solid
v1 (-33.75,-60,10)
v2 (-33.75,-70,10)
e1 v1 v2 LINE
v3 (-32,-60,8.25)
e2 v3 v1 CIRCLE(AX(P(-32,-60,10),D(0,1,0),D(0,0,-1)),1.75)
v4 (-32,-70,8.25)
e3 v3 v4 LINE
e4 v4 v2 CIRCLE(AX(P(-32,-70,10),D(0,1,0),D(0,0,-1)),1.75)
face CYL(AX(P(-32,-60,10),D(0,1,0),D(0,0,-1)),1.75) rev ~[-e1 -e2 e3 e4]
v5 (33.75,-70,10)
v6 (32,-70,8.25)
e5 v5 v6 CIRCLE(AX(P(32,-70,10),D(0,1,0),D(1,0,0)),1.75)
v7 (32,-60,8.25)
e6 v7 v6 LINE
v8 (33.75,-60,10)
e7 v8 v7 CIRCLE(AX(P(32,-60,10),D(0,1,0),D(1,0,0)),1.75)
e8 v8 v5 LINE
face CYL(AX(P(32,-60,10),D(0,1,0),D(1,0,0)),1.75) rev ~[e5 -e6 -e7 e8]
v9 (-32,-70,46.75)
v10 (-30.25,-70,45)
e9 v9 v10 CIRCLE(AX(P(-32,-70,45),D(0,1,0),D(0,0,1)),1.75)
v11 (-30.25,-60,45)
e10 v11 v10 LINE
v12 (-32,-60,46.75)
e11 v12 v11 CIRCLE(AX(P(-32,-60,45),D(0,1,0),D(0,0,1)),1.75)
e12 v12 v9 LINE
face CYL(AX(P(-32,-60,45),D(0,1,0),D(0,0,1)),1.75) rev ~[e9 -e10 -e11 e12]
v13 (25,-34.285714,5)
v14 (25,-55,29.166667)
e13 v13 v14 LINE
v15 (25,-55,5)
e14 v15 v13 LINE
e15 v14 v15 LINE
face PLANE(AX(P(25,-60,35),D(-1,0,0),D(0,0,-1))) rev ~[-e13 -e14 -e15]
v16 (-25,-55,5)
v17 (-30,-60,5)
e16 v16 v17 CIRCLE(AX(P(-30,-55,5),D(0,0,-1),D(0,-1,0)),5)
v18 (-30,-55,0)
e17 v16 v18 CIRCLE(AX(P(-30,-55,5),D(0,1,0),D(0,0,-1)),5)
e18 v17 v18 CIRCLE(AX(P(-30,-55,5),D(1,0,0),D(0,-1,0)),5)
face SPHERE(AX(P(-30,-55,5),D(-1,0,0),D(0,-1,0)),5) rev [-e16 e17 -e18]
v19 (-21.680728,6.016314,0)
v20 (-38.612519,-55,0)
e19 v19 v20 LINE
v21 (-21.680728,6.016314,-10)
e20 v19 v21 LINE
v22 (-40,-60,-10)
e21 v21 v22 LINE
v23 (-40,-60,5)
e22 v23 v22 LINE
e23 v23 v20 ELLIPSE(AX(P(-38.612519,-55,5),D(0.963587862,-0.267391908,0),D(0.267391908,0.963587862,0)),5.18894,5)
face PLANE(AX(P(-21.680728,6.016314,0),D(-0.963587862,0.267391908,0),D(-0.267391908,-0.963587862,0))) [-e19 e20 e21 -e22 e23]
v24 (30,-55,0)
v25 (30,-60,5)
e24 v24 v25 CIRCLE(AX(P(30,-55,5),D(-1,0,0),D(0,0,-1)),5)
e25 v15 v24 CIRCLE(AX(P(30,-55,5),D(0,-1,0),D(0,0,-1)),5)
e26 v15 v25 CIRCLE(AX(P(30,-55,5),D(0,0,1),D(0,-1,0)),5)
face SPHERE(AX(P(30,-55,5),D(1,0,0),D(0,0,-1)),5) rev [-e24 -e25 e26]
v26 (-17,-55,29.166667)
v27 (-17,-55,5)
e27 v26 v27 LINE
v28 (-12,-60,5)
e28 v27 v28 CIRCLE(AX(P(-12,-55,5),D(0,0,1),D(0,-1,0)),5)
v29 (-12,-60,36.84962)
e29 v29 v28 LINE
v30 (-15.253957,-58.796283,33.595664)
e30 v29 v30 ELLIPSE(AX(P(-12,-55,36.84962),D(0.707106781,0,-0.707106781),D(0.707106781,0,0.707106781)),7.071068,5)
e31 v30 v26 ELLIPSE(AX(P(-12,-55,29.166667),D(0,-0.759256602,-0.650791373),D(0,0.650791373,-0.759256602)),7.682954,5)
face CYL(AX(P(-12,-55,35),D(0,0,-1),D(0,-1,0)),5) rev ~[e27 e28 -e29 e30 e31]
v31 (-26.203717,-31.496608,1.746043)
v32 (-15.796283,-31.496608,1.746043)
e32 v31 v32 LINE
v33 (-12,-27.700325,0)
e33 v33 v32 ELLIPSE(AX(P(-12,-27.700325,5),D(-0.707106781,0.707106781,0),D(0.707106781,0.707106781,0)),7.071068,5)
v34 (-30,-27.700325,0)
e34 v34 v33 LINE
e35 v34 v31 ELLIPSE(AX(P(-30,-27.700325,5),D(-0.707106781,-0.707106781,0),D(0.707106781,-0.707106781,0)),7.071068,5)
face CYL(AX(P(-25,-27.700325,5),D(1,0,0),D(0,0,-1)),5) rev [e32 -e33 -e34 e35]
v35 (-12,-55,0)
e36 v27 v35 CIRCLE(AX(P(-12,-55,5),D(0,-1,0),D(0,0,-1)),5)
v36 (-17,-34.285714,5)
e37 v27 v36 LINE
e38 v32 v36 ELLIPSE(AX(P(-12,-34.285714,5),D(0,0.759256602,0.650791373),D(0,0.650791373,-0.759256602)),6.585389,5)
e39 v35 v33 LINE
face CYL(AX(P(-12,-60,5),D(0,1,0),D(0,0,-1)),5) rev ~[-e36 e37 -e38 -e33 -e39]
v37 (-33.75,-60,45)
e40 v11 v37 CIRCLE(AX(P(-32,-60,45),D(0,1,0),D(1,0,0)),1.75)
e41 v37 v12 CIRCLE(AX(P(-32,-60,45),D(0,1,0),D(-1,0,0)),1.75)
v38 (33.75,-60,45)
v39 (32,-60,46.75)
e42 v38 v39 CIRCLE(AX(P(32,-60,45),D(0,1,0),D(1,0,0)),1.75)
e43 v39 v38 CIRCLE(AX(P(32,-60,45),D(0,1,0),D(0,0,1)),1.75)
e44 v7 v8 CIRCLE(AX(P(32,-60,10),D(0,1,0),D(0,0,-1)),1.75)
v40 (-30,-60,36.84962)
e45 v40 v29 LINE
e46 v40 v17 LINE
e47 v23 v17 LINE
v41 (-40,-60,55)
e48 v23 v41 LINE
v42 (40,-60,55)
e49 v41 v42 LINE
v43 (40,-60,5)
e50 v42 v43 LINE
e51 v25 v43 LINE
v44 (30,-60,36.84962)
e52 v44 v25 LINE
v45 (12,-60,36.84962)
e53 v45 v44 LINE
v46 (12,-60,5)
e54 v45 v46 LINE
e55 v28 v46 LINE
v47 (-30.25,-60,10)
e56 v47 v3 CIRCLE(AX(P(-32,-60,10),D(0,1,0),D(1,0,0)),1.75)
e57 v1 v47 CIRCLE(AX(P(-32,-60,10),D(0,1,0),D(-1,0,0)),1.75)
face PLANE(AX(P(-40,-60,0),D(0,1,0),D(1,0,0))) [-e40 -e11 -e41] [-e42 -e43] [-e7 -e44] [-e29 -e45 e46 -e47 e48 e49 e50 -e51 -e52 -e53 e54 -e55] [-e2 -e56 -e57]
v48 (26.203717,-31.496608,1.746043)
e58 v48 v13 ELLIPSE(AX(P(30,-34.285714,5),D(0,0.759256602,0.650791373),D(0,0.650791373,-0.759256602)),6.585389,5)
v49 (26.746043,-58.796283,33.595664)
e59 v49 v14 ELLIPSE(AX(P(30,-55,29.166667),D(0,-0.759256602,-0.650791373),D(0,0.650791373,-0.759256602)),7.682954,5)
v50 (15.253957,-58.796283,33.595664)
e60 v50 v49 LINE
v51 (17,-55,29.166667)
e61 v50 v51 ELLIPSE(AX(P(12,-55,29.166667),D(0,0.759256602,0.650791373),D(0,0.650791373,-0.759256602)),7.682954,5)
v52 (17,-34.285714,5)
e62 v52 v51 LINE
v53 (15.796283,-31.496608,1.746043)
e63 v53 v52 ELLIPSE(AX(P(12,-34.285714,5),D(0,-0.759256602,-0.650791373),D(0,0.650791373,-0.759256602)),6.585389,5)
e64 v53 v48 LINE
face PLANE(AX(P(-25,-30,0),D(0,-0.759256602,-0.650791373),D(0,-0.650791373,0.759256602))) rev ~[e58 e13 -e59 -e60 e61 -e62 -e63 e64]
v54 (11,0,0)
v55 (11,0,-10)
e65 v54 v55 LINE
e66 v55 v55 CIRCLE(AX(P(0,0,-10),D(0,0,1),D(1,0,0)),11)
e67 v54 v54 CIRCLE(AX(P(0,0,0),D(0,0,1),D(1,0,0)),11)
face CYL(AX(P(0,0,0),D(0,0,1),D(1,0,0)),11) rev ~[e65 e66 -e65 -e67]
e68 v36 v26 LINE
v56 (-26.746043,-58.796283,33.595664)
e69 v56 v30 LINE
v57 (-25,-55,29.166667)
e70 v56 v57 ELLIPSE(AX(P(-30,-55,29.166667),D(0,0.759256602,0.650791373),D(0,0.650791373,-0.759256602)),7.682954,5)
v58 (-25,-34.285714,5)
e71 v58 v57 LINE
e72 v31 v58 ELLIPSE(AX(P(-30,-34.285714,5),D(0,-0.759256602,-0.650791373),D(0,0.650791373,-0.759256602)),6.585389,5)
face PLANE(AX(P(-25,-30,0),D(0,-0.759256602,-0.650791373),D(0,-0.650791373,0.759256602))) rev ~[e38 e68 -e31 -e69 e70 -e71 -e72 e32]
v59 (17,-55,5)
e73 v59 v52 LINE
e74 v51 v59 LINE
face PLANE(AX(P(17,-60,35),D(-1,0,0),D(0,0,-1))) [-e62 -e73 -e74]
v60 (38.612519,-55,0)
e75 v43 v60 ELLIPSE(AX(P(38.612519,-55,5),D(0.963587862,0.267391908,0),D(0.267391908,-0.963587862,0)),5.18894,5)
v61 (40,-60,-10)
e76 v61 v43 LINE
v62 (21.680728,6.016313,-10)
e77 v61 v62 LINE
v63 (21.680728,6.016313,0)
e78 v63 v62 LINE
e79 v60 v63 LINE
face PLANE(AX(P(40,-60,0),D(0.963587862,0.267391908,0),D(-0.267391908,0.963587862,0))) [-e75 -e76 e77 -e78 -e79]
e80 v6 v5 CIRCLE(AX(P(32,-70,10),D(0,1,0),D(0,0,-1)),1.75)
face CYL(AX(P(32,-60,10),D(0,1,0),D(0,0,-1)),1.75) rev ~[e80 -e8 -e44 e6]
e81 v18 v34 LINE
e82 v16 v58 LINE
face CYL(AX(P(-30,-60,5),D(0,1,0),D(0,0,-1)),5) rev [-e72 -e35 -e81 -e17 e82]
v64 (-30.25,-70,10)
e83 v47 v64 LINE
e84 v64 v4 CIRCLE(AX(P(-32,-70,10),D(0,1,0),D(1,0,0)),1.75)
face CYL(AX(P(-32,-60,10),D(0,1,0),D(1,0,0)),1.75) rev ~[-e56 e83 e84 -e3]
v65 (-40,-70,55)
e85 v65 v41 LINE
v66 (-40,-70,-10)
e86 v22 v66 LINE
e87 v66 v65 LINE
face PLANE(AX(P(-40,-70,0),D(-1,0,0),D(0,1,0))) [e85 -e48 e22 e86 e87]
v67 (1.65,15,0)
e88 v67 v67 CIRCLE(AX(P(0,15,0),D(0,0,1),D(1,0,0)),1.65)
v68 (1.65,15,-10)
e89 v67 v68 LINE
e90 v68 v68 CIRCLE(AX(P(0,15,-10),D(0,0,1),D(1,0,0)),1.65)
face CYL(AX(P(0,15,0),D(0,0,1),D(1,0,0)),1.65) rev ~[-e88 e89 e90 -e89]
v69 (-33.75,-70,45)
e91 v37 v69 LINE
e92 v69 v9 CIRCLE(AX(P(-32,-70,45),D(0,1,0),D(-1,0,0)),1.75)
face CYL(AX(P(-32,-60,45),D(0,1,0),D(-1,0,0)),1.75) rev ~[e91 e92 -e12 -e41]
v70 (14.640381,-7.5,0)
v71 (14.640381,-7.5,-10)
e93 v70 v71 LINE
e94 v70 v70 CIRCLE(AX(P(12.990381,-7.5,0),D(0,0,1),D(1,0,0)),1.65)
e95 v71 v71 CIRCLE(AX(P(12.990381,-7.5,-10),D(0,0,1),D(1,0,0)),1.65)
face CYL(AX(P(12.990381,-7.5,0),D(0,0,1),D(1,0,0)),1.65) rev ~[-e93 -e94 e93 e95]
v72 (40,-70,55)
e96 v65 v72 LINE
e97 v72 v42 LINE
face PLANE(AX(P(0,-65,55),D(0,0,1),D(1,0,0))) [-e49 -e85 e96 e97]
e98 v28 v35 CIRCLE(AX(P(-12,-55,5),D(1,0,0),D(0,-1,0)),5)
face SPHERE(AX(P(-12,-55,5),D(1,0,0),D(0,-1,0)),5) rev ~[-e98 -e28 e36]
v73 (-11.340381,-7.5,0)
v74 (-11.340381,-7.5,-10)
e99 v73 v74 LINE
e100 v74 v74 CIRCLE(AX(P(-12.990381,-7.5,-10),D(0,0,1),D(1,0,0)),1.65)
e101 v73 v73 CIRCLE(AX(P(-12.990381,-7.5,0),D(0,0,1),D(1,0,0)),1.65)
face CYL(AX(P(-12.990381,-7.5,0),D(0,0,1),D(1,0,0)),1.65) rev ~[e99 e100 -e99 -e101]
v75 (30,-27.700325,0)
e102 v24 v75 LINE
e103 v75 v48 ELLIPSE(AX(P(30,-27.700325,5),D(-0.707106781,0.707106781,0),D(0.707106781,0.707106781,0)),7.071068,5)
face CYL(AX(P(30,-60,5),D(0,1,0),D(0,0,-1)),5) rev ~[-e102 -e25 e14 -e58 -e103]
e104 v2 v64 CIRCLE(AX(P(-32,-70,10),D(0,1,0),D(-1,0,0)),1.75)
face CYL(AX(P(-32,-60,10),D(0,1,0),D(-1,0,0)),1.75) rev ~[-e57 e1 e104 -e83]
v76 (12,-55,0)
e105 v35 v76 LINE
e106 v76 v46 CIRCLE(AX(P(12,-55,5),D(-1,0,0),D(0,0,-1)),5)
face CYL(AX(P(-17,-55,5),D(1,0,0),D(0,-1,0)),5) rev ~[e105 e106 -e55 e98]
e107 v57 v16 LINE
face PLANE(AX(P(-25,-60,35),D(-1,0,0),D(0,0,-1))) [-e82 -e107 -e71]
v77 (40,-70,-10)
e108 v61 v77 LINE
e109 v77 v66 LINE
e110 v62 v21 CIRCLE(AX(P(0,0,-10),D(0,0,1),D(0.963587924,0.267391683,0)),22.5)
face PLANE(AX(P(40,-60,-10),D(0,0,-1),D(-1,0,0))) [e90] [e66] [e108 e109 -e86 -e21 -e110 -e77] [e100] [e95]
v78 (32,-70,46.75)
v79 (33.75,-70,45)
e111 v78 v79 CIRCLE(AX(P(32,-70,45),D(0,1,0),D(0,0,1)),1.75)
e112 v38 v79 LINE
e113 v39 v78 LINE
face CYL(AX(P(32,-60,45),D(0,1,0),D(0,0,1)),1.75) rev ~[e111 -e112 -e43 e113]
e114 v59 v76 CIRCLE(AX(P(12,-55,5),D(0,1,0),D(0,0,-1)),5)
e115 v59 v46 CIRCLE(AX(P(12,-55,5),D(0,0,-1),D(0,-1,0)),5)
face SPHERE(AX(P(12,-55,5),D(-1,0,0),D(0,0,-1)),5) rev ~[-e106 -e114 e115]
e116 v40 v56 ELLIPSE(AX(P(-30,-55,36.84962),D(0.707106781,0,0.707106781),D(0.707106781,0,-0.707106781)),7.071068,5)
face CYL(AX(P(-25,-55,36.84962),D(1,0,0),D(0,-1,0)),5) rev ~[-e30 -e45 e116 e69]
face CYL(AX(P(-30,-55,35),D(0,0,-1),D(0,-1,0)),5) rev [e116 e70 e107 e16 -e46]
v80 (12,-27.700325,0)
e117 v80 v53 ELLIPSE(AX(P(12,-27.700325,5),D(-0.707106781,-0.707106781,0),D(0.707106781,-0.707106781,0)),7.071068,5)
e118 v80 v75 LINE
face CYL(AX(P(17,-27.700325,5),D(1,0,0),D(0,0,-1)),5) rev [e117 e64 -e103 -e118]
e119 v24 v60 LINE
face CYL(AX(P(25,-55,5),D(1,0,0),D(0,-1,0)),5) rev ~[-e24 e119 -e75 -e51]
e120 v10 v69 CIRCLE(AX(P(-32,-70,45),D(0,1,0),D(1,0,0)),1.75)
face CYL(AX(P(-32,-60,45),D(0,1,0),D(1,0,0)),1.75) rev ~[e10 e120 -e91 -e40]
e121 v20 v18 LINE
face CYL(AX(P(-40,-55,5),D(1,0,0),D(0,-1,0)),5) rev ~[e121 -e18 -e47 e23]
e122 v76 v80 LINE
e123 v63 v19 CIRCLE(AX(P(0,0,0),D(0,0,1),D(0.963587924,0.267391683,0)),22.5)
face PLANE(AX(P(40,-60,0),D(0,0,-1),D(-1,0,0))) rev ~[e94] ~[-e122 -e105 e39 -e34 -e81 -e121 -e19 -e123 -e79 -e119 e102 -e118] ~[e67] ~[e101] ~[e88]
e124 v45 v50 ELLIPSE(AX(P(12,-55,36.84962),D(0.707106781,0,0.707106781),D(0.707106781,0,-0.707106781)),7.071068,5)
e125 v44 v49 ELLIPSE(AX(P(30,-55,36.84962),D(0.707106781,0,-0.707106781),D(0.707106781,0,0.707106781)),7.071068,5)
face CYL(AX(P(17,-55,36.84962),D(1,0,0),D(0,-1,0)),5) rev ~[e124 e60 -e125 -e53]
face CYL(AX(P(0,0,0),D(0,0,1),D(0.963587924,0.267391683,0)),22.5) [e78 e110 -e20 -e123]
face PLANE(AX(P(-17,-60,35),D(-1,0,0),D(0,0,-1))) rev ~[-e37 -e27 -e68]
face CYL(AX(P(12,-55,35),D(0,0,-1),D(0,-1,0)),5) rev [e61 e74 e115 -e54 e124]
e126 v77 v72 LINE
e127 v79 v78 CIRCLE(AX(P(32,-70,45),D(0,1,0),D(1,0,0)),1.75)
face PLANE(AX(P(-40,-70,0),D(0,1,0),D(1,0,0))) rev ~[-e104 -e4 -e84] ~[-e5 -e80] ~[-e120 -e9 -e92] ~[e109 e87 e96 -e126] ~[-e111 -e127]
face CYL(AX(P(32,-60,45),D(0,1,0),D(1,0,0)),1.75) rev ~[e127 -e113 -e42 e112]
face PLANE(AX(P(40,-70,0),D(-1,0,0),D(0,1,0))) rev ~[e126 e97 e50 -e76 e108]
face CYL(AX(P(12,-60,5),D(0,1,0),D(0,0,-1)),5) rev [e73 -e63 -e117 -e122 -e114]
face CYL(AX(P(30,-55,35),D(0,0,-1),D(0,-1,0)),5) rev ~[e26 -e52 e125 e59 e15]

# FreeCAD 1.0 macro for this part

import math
import FreeCAD as App
import Part
import Sketcher
from FreeCAD import Vector


def edges_at(feature, points):
    """Names of the edges that pass closest to the given points."""
    edges = feature.Shape.Edges
    near = lambda p: min(range(len(edges)), key=lambda i: edges[i].distToShape(Part.Vertex(*p))[0])
    return sorted({f"Edge{near(p) + 1}" for p in points})


def add_polygon(sketch, points):
    """Adds a closed chain of lines whose ends are joined by coincident constraints."""
    first, n = sketch.GeometryCount, len(points)
    for a, b in zip(points, points[1:] + points[:1]):
        sketch.addGeometry(Part.LineSegment(App.Vector(*a, 0), App.Vector(*b, 0)), False)
    for i in range(n):
        sketch.addConstraint(Sketcher.Constraint("Coincident", first + i, 2, first + (i + 1) % n, 1))

doc = App.newDocument("Part")
body = doc.addObject("PartDesign::Body", "Body")

sketch1 = body.newObject("Sketcher::SketchObject", "Sketch")
sketch1.AttachmentSupport = (doc.getObject("XY_Plane"), [""])
sketch1.MapMode = "FlatFace"
sketch1.addGeometry([
    Part.ArcOfCircle(Part.Circle(Vector(0, 0, 0), Vector(0, 0, 1), 22.5), math.radians(16), math.radians(164)),
    Part.LineSegment(Vector(-21.7, 6, 0), Vector(-40, -60, 0)),
    Part.LineSegment(Vector(-40, -60, 0), Vector(40, -60, 0)),
    Part.LineSegment(Vector(40, -60, 0), Vector(21.7, 6, 0)),
    Part.Circle(Vector(-13, -7.5, 0), Vector(0, 0, 1), 1.6),
    Part.Circle(Vector(13, -7.5, 0), Vector(0, 0, 1), 1.6),
    Part.Circle(Vector(0, 0, 0), Vector(0, 0, 1), 11),
    Part.Circle(Vector(0, 15, 0), Vector(0, 0, 1), 1.6),
], False)
sketch1.addConstraint([
    Sketcher.Constraint("Tangent", 0, 2, 1, 1),
    Sketcher.Constraint("Coincident", 1, 2, 2, 1),
    Sketcher.Constraint("Coincident", 2, 2, 3, 1),
    Sketcher.Constraint("Tangent", 3, 2, 0, 1),
    Sketcher.Constraint("Horizontal", 2),
    Sketcher.Constraint("Coincident", 0, 3, -1, 1),
    Sketcher.Constraint("Coincident", 6, 3, -1, 1),
    Sketcher.Constraint("Equal", 4, 5),
    Sketcher.Constraint("Equal", 5, 7),
    Sketcher.Constraint("Symmetric", 4, 3, 5, 3, -2),
    Sketcher.Constraint("PointOnObject", 7, 3, -2),
    Sketcher.Constraint("Horizontal", 0, 2, 3, 2),
    Sketcher.Constraint("Diameter", 6, 22.0),
    Sketcher.Constraint("Diameter", 4, 3.3),
    Sketcher.Constraint("Radius", 0, 22.5),
    Sketcher.Constraint("DistanceX", 2, 1, 2, 2, 80.0),
    Sketcher.Constraint("DistanceY", -1, 1, 7, 3, 15.0),
    Sketcher.Constraint("DistanceY", 1, 2, -1, 1, 60.0),
    Sketcher.Constraint("DistanceY", 4, 3, -1, 1, 7.5),
    Sketcher.Constraint("DistanceX", 4, 3, -1, 1, 12.990381),
])
pad1 = body.newObject("PartDesign::Pad", "Pad")
pad1.Profile = sketch1
pad1.Length = 10
pad1.Reversed = True

sketch2 = body.newObject("Sketcher::SketchObject", "Sketch001")
sketch2.AttachmentSupport = (doc.getObject("XZ_Plane"), [""])
sketch2.MapMode = "FlatFace"
sketch2.AttachmentOffset = App.Placement(Vector(0, 0, 60), App.Rotation())
add_polygon(sketch2, [(40, -10), (40, 0), (-40, 0), (-40, -10)])
sketch2.addConstraint([
    Sketcher.Constraint("Vertical", 0),
    Sketcher.Constraint("Horizontal", 1),
    Sketcher.Constraint("Vertical", 2),
    Sketcher.Constraint("Horizontal", 3),
    Sketcher.Constraint("Symmetric", 0, 2, 1, 2, -1, 1),
    Sketcher.Constraint("DistanceX", 1, 2, 1, 1, 80.0),
    Sketcher.Constraint("DistanceY", 0, 1, 0, 2, 10.0),
])
pad2 = body.newObject("PartDesign::Pad", "Pad001")
pad2.Profile = sketch2
pad2.Length = 10

sketch3 = body.newObject("Sketcher::SketchObject", "Sketch002")
sketch3.AttachmentSupport = (doc.getObject("XY_Plane"), [""])
sketch3.MapMode = "FlatFace"
add_polygon(sketch3, [(-40, -60), (-40, -70), (40, -70), (40, -60)])
sketch3.addConstraint([
    Sketcher.Constraint("Vertical", 0),
    Sketcher.Constraint("Horizontal", 1),
    Sketcher.Constraint("Vertical", 2),
    Sketcher.Constraint("Horizontal", 3),
    Sketcher.Constraint("DistanceX", 1, 1, 1, 2, 80.0),
    Sketcher.Constraint("DistanceY", 0, 2, 0, 1, 10.0),
    Sketcher.Constraint("DistanceX", 0, 2, -1, 1, 40.0),
    Sketcher.Constraint("DistanceY", 0, 2, -1, 1, 70.0),
])
pad3 = body.newObject("PartDesign::Pad", "Pad002")
pad3.Profile = sketch3
pad3.Length = 55

sketch4 = body.newObject("Sketcher::SketchObject", "Sketch003")
sketch4.AttachmentSupport = (doc.getObject("XZ_Plane"), [""])
sketch4.MapMode = "FlatFace"
sketch4.AttachmentOffset = App.Placement(Vector(0, 0, 60), App.Rotation())
add_polygon(sketch4, [(-25, 0), (-25, 35), (-17, 35), (-17, 0)])
add_polygon(sketch4, [(17, 0), (17, 35), (25, 35), (25, 0)])
sketch4.addConstraint([
    Sketcher.Constraint("Vertical", 0),
    Sketcher.Constraint("Horizontal", 1),
    Sketcher.Constraint("Vertical", 2),
    Sketcher.Constraint("Horizontal", 3),
    Sketcher.Constraint("Vertical", 4),
    Sketcher.Constraint("Horizontal", 5),
    Sketcher.Constraint("Vertical", 6),
    Sketcher.Constraint("Horizontal", 7),
    Sketcher.Constraint("Symmetric", 3, 2, 6, 2, -1, 1),
    Sketcher.Constraint("Symmetric", 1, 2, 4, 2, -2),
    Sketcher.Constraint("PointOnObject", 2, 2, -1),
    Sketcher.Constraint("DistanceX", 1, 1, 1, 2, 8.0),
    Sketcher.Constraint("DistanceY", 0, 1, 0, 2, 35.0),
    Sketcher.Constraint("DistanceX", 0, 2, -1, 1, 25.0),
])
pad4 = body.newObject("PartDesign::Pad", "Pad003")
pad4.Profile = sketch4
pad4.Length = 30
pad4.Reversed = True

sketch5 = body.newObject("Sketcher::SketchObject", "Sketch004")
sketch5.AttachmentSupport = (doc.getObject("YZ_Plane"), [""])
sketch5.MapMode = "FlatFace"
sketch5.AttachmentOffset = App.Placement(Vector(0, 0, -25), App.Rotation())
add_polygon(sketch5, [(-30, 0), (-60, 35), (-30, 35)])
sketch5.addConstraint([
    Sketcher.Constraint("Horizontal", 1),
    Sketcher.Constraint("Vertical", 2),
    Sketcher.Constraint("PointOnObject", 2, 2, -1),
    Sketcher.Constraint("DistanceX", 1, 1, 1, 2, 30.0),
    Sketcher.Constraint("DistanceY", 2, 2, 2, 1, 35.0),
    Sketcher.Constraint("DistanceX", 0, 2, -1, 1, 60.0),
])
pocket1 = body.newObject("PartDesign::Pocket", "Pocket")
pocket1.Profile = sketch5
pocket1.Length = 157
pocket1.Reversed = True

sketch6 = body.newObject("Sketcher::SketchObject", "Sketch005")
sketch6.AttachmentSupport = (doc.getObject("XZ_Plane"), [""])
sketch6.MapMode = "FlatFace"
sketch6.AttachmentOffset = App.Placement(Vector(0, 0, 60), App.Rotation())
sketch6.addGeometry([
    Part.ArcOfCircle(Part.Circle(Vector(-32, 45, 0), Vector(0, 0, 1), 1.8), math.radians(90), math.radians(180)),
    Part.ArcOfCircle(Part.Circle(Vector(-32, 45, 0), Vector(0, 0, 1), 1.8), math.radians(0), math.radians(90)),
    Part.ArcOfCircle(Part.Circle(Vector(-32, 45, 0), Vector(0, 0, 1), 1.8), math.radians(180), math.radians(360)),
    Part.ArcOfCircle(Part.Circle(Vector(32, 45, 0), Vector(0, 0, 1), 1.8), math.radians(90), math.radians(360)),
    Part.ArcOfCircle(Part.Circle(Vector(32, 45, 0), Vector(0, 0, 1), 1.8), math.radians(0), math.radians(90)),
    Part.ArcOfCircle(Part.Circle(Vector(32, 10, 0), Vector(0, 0, 1), 1.8), math.radians(-90), math.radians(0)),
    Part.ArcOfCircle(Part.Circle(Vector(32, 10, 0), Vector(0, 0, 1), 1.8), math.radians(0), math.radians(270)),
    Part.ArcOfCircle(Part.Circle(Vector(-32, 10, 0), Vector(0, 0, 1), 1.8), math.radians(-90), math.radians(0)),
    Part.ArcOfCircle(Part.Circle(Vector(-32, 10, 0), Vector(0, 0, 1), 1.8), math.radians(180), math.radians(270)),
    Part.ArcOfCircle(Part.Circle(Vector(-32, 10, 0), Vector(0, 0, 1), 1.8), math.radians(0), math.radians(180)),
], False)
sketch6.addConstraint([
    Sketcher.Constraint("Tangent", 0, 1, 1, 2),
    Sketcher.Constraint("Tangent", 1, 1, 2, 2),
    Sketcher.Constraint("Tangent", 2, 1, 0, 2),
    Sketcher.Constraint("Tangent", 3, 1, 4, 2),
    Sketcher.Constraint("Coincident", 4, 1, 3, 2),
    Sketcher.Constraint("Tangent", 5, 1, 6, 2),
    Sketcher.Constraint("Coincident", 6, 1, 5, 2),
    Sketcher.Constraint("Tangent", 7, 1, 8, 2),
    Sketcher.Constraint("Tangent", 8, 1, 9, 2),
    Sketcher.Constraint("Tangent", 9, 1, 7, 2),
    Sketcher.Constraint("Equal", 2, 3),
    Sketcher.Constraint("Equal", 4, 5),
    Sketcher.Constraint("Equal", 6, 7),
    Sketcher.Constraint("Symmetric", 0, 3, 3, 3, -2),
    Sketcher.Constraint("Symmetric", 5, 3, 7, 3, -2),
    Sketcher.Constraint("Horizontal", 4, 3, 1, 1),
    Sketcher.Constraint("Horizontal", 1, 1, 2, 1),
    Sketcher.Constraint("Horizontal", 2, 1, 4, 1),
    Sketcher.Constraint("Horizontal", 9, 3, 6, 1),
    Sketcher.Constraint("Horizontal", 6, 1, 8, 1),
    Sketcher.Constraint("Horizontal", 8, 1, 9, 1),
    Sketcher.Constraint("Vertical", 4, 3, 5, 3),
    Sketcher.Constraint("Vertical", 9, 3, 0, 1),
    Sketcher.Constraint("Vertical", 6, 3, 3, 1),
    Sketcher.Constraint("Vertical", 3, 1, 5, 1),
    Sketcher.Constraint("Vertical", 0, 1, 7, 1),
    Sketcher.Constraint("Radius", 0, 1.75),
    Sketcher.Constraint("DistanceX", 0, 3, -1, 1, 32.0),
    Sketcher.Constraint("DistanceY", -1, 1, 0, 3, 45.0),
    Sketcher.Constraint("DistanceY", -1, 1, 5, 3, 10.0),
])
pocket2 = body.newObject("PartDesign::Pocket", "Pocket001")
pocket2.Profile = sketch6
pocket2.Length = 157
pocket2.Reversed = True
doc.recompute()

fillet = body.newObject("PartDesign::Fillet", "Fillet")
fillet.Base = (pocket2, edges_at(pocket2, [
    (32.5, -60, 0),
    (0, -60, 0),
    (-32.5, -60, 0),
    (-21, -60, 35),
    (-17, -60, 17.5),
    (-17, -45, 0),
    (-25, -60, 17.5),
    (-25, -45, 0),
    (-21, -30, 0),
    (17, -45, 0),
    (25, -45, 0),
    (21, -30, 0),
    (17, -60, 17.5),
    (25, -60, 17.5),
    (21, -60, 35),
]))
fillet.Radius = 5

doc.recompute()
